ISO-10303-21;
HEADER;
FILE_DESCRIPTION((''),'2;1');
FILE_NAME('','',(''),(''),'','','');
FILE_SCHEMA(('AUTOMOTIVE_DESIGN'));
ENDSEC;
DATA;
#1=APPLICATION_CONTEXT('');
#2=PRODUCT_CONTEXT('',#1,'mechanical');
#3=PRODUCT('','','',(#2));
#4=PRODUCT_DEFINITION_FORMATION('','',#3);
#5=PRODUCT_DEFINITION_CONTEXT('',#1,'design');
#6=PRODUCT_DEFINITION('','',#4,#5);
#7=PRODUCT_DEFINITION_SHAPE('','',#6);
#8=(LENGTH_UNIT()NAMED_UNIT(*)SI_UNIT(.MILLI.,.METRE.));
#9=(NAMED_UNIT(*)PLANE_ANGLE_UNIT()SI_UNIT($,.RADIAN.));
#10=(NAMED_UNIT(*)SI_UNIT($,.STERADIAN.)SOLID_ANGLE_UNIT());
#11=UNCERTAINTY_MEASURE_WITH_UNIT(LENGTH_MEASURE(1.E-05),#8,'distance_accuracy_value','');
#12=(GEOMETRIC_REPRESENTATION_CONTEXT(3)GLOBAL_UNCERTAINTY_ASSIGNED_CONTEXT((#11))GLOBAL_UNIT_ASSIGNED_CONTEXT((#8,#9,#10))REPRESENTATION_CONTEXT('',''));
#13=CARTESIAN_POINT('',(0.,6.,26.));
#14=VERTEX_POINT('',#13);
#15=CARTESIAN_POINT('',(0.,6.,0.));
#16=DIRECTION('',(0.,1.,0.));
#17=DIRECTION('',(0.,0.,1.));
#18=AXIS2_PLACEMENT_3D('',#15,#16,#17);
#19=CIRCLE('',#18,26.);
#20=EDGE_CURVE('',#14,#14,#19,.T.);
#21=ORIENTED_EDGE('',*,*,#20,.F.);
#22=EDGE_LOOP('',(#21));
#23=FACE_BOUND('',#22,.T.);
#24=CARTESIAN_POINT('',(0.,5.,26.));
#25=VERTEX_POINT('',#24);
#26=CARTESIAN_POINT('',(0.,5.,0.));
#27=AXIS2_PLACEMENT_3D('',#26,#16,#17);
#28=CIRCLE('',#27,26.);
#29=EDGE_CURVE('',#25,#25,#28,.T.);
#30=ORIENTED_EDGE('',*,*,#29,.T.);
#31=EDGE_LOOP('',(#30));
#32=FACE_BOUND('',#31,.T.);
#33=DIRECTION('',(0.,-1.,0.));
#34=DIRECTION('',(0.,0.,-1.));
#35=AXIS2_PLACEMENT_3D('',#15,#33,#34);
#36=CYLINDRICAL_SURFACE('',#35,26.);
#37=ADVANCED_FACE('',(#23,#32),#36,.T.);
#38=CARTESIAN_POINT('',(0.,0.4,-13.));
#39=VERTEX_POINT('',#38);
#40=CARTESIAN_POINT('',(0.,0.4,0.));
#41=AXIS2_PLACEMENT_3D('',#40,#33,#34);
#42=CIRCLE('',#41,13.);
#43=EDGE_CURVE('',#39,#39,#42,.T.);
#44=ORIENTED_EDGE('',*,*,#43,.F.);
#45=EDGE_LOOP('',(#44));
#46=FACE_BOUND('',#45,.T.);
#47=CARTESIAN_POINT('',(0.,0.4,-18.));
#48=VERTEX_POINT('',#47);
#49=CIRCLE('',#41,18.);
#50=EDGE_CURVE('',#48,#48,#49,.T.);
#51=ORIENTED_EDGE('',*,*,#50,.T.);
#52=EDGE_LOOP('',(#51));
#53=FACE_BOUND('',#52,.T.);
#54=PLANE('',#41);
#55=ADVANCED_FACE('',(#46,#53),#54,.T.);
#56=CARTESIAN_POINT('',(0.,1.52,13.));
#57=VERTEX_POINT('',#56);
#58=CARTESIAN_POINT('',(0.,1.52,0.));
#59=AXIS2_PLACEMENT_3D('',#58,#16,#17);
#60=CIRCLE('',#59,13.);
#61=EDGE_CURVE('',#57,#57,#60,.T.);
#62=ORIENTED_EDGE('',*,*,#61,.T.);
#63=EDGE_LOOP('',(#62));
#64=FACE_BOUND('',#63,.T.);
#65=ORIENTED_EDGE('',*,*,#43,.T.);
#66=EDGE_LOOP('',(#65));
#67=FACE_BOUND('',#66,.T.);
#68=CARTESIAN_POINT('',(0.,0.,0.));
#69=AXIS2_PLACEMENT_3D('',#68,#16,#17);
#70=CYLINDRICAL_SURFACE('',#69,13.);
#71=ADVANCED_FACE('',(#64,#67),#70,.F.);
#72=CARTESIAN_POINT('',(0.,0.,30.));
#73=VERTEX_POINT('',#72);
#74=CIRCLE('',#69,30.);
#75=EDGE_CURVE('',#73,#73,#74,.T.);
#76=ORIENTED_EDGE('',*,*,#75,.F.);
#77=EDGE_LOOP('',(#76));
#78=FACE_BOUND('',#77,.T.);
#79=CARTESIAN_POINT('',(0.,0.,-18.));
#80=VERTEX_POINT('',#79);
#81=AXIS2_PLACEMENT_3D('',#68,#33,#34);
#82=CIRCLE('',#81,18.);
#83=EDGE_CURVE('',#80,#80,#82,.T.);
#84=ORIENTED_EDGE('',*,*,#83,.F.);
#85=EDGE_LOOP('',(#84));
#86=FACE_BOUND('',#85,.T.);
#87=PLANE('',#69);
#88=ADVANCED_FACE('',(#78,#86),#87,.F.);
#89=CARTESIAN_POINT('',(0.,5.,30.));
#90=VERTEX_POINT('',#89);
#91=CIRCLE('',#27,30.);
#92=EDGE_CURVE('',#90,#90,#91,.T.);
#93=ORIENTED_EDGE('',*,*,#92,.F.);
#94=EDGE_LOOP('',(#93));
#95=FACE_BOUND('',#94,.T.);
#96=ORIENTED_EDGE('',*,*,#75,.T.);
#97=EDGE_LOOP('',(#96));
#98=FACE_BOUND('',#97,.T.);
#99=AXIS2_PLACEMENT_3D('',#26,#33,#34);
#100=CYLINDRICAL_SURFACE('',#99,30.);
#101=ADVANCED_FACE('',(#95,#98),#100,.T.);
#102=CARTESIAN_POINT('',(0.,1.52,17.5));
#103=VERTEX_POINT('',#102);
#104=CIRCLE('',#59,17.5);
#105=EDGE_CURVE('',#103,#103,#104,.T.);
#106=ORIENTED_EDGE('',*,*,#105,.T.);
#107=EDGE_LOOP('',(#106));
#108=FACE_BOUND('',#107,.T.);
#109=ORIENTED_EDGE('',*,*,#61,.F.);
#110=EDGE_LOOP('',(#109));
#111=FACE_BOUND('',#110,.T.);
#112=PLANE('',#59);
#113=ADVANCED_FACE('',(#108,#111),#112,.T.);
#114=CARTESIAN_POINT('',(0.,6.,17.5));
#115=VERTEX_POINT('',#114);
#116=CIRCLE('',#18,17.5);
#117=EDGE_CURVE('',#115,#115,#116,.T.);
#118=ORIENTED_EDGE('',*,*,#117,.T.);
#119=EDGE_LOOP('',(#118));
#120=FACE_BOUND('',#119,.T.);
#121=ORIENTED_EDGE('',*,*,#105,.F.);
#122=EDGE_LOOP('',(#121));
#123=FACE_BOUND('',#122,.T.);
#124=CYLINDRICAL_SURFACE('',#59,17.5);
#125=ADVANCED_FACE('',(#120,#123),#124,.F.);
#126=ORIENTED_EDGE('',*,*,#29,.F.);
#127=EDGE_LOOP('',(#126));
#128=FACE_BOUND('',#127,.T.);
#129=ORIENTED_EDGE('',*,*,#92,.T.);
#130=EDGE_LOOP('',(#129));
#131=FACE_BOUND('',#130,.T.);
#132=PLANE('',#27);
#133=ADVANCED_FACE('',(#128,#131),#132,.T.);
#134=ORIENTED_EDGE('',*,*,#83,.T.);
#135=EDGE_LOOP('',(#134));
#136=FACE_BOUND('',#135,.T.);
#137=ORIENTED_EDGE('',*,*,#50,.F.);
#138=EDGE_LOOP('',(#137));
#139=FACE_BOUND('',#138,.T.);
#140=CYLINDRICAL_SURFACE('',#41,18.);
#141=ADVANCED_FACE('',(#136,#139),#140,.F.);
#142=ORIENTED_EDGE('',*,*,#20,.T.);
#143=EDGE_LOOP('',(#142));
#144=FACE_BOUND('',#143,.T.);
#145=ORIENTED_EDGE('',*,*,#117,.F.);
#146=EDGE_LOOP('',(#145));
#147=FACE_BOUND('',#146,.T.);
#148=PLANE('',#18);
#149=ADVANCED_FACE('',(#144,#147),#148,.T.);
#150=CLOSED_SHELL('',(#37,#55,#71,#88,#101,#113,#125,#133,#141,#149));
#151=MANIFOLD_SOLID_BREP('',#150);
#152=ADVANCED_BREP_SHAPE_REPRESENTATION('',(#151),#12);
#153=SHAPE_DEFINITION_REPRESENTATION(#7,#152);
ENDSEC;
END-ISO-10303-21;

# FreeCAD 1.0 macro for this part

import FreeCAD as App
import Part
import Sketcher

V = App.Vector
Q = App.Units.Quantity

doc = App.newDocument("Part")
params = doc.addObject("Spreadsheet::Sheet", "Params")
for row, (alias, value) in enumerate([
    ("sketch1_diameter", "60 mm"),
    ("pad1_length", "5 mm"),
    ("sketch2_diameter", "52 mm"),
    ("pad2_length", "1 mm"),
    ("sketch3_diameter", "36 mm"),
    ("pocket1_length", "0.4 mm"),
    ("sketch4_diameter", "35 mm"),
    ("pocket2_length", "4.48 mm"),
    ("sketch5_diameter", "26 mm"),
], start=1):
    params.set(f"A{row}", alias)
    params.set(f"B{row}", "=" + value)
    params.setAlias(f"B{row}", alias)

body = doc.addObject("PartDesign::Body", "Body")

# Sketch on XZ plane
sketch1 = body.newObject("Sketcher::SketchObject", "Sketch")
sketch1.AttachmentSupport = (doc.getObject("XZ_Plane"), [""])
sketch1.MapMode = "FlatFace"
sketch1.addGeometry(Part.Circle(V(0, 0, 0), V(0, 0, 1), 30), False)
sketch1.addConstraint(Sketcher.Constraint("Coincident", 0, 3, -1, 1))
sketch1.addConstraint(Sketcher.Constraint("Diameter", 0, Q("60 mm")))
sketch1.setExpression("Constraints[1]", "Params.sketch1_diameter")
pad1 = body.newObject("PartDesign::Pad", "Pad")
pad1.Profile = sketch1
pad1.setExpression("Length", "Params.pad1_length")
pad1.Reversed = True

# Sketch on XZ plane
sketch2 = body.newObject("Sketcher::SketchObject", "Sketch001")
sketch2.AttachmentSupport = (doc.getObject("XZ_Plane"), [""])
sketch2.MapMode = "FlatFace"
sketch2.AttachmentOffset = App.Placement(V(0, 0, -5), App.Rotation())
sketch2.addGeometry(Part.Circle(V(0, 0, 0), V(0, 0, 1), 26), False)
sketch2.addConstraint(Sketcher.Constraint("Coincident", 0, 3, -1, 1))
sketch2.addConstraint(Sketcher.Constraint("Diameter", 0, Q("52 mm")))
sketch2.setExpression("Constraints[1]", "Params.sketch2_diameter")
pad2 = body.newObject("PartDesign::Pad", "Pad001")
pad2.Profile = sketch2
pad2.setExpression("Length", "Params.pad2_length")
pad2.Reversed = True

# Sketch on XZ plane
sketch3 = body.newObject("Sketcher::SketchObject", "Sketch002")
sketch3.AttachmentSupport = (doc.getObject("XZ_Plane"), [""])
sketch3.MapMode = "FlatFace"
sketch3.addGeometry(Part.Circle(V(0, 0, 0), V(0, 0, 1), 18), False)
sketch3.addConstraint(Sketcher.Constraint("Coincident", 0, 3, -1, 1))
sketch3.addConstraint(Sketcher.Constraint("Diameter", 0, Q("36 mm")))
sketch3.setExpression("Constraints[1]", "Params.sketch3_diameter")
pocket1 = body.newObject("PartDesign::Pocket", "Pocket")
pocket1.Profile = sketch3
pocket1.setExpression("Length", "Params.pocket1_length")

# Sketch on XZ plane
sketch4 = body.newObject("Sketcher::SketchObject", "Sketch003")
sketch4.AttachmentSupport = (doc.getObject("XZ_Plane"), [""])
sketch4.MapMode = "FlatFace"
sketch4.AttachmentOffset = App.Placement(V(0, 0, -6), App.Rotation())
sketch4.addGeometry(Part.Circle(V(0, 0, 0), V(0, 0, 1), 18), False)
sketch4.addConstraint(Sketcher.Constraint("Coincident", 0, 3, -1, 1))
sketch4.addConstraint(Sketcher.Constraint("Diameter", 0, Q("35 mm")))
sketch4.setExpression("Constraints[1]", "Params.sketch4_diameter")
pocket2 = body.newObject("PartDesign::Pocket", "Pocket001")
pocket2.Profile = sketch4
pocket2.setExpression("Length", "Params.pocket2_length")
pocket2.Reversed = True

# Sketch on XZ plane
sketch5 = body.newObject("Sketcher::SketchObject", "Sketch004")
sketch5.AttachmentSupport = (doc.getObject("XZ_Plane"), [""])
sketch5.MapMode = "FlatFace"
sketch5.AttachmentOffset = App.Placement(V(0, 0, -1.52), App.Rotation())
sketch5.addGeometry(Part.Circle(V(0, 0, 0), V(0, 0, 1), 13), False)
sketch5.addConstraint(Sketcher.Constraint("Coincident", 0, 3, -1, 1))
sketch5.addConstraint(Sketcher.Constraint("Diameter", 0, Q("26 mm")))
sketch5.setExpression("Constraints[1]", "Params.sketch5_diameter")
pocket3 = body.newObject("PartDesign::Pocket", "Pocket002")
pocket3.Profile = sketch5
pocket3.Type = "ThroughAll"
pocket3.Reversed = True

doc.recompute()
